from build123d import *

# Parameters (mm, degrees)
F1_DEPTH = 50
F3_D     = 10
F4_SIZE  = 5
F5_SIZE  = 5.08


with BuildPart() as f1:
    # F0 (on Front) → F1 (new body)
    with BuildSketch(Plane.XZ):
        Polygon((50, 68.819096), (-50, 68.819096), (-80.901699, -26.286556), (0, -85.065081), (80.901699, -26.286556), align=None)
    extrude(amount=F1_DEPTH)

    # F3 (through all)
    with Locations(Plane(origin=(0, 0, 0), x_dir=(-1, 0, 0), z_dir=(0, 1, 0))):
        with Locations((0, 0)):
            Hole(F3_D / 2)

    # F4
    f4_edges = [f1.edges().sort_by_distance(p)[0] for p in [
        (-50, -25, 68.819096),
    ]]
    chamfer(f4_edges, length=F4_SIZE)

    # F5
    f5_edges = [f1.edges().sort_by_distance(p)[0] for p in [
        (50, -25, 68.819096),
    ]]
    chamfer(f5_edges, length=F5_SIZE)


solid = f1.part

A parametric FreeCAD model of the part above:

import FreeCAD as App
import Part
import Sketcher
Q = App.Units.Quantity


def edges_at(feature, points):
    """Names of the edges that pass closest to the given points."""
    edges = feature.Shape.Edges
    near = lambda p: min(range(len(edges)), key=lambda i: edges[i].distToShape(Part.Vertex(*p))[0])
    return sorted({f"Edge{near(p) + 1}" for p in points})


def add_polygon(sketch, points):
    """Adds a closed chain of lines whose ends are joined by coincident constraints."""
    first, n = sketch.GeometryCount, len(points)
    for a, b in zip(points, points[1:] + points[:1]):
        sketch.addGeometry(Part.LineSegment(App.Vector(*a, 0), App.Vector(*b, 0)), False)
    for i in range(n):
        sketch.addConstraint(Sketcher.Constraint("Coincident", first + i, 2, first + (i + 1) % n, 1))

doc = App.newDocument("Part")
params = doc.addObject("Spreadsheet::Sheet", "Params")
for row, (alias, value) in enumerate([
    ("sketch1_width", "100 mm"),
    ("pad1_length", "50 mm"),
    ("sketch2_diameter", "10 mm"),
    ("hole_diameter", "10 mm"),
    ("chamfer_size", "5 mm"),
    ("chamfer2_size", "5.08 mm"),
], start=1):
    params.set(f"A{row}", alias)
    params.set(f"B{row}", "=" + value)
    params.setAlias(f"B{row}", alias)

body = doc.addObject("PartDesign::Body", "Body")

# Sketch on XZ plane
sketch1 = body.newObject("Sketcher::SketchObject", "Sketch")
sketch1.AttachmentSupport = (doc.getObject("XZ_Plane"), [""])
sketch1.MapMode = "FlatFace"
add_polygon(sketch1, [(50, 69), (-50, 69), (-81, -26), (0, -85), (81, -26)])  # lines 0-4
sketch1.addConstraint(Sketcher.Constraint("Horizontal", 0))
sketch1.addConstraint(Sketcher.Constraint("Symmetric", 1, 2, 3, 2, -2))
sketch1.addConstraint(Sketcher.Constraint("PointOnObject", 2, 2, -2))
sketch1.addConstraint(Sketcher.Constraint("Equal", 1, 2))
sketch1.addConstraint(Sketcher.Constraint("Equal", 3, 4))
sketch1.addConstraint(Sketcher.Constraint("DistanceX", 0, 2, 0, 1, Q("100 mm")))
sketch1.addConstraint(Sketcher.Constraint("Angle", 1, Q("-108 deg")))
sketch1.addConstraint(Sketcher.Constraint("Angle", 2, Q("-36 deg")))
sketch1.addConstraint(Sketcher.Constraint("DistanceY", 2, 2, -1, 1, Q("85.065081 mm")))
sketch1.setExpression("Constraints[10]", "Params.sketch1_width")
pad1 = body.newObject("PartDesign::Pad", "Pad")
pad1.Profile = sketch1
pad1.setExpression("Length", "Params.pad1_length")

# Sketch on XZ plane
sketch2 = body.newObject("Sketcher::SketchObject", "Sketch001")
sketch2.AttachmentSupport = (doc.getObject("XZ_Plane"), [""])
sketch2.MapMode = "FlatFace"
sketch2.addGeometry(Part.Circle(App.Vector(0, 0, 0), App.Vector(0, 0, 1), 5), False)
sketch2.addConstraint(Sketcher.Constraint("Coincident", 0, 3, -1, 1))
sketch2.addConstraint(Sketcher.Constraint("Diameter", 0, Q("10 mm")))
sketch2.setExpression("Constraints[1]", "Params.sketch2_diameter")
doc.recompute()
hole = body.newObject("PartDesign::Hole", "Hole")
hole.Profile = sketch2
hole.ThreadType = "None"
hole.setExpression("Diameter", "Params.hole_diameter")
hole.DepthType = "ThroughAll"
hole.Reversed = True
doc.recompute()

chamfer = body.newObject("PartDesign::Chamfer", "Chamfer")
chamfer.Base = (hole, edges_at(hole, [(-50, -25, 68.819)]))
chamfer.setExpression("Size", "Params.chamfer_size")
doc.recompute()

chamfer2 = body.newObject("PartDesign::Chamfer", "Chamfer001")
chamfer2.Base = (chamfer, edges_at(chamfer, [(50, -25, 68.819)]))
chamfer2.setExpression("Size", "Params.chamfer2_size")

doc.recompute()
